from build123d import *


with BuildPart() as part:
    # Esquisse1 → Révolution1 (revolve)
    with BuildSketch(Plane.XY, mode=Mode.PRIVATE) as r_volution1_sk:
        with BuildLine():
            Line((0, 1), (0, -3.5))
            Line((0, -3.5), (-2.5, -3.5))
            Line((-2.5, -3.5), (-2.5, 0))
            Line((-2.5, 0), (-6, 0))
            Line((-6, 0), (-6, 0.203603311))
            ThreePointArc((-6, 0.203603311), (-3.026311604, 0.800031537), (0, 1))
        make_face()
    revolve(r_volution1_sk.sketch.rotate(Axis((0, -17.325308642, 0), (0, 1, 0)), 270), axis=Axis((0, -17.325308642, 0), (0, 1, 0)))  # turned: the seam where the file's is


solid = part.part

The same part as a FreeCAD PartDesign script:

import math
import FreeCAD as App
import Part
import Sketcher

V = App.Vector

doc = App.newDocument("Part")
body = doc.addObject("PartDesign::Body", "Body")

# Sketch on XY plane
sketch1 = body.newObject("Sketcher::SketchObject", "Sketch")
sketch1.AttachmentSupport = (doc.getObject("XY_Plane"), [""])
sketch1.MapMode = "FlatFace"
sketch1.addGeometry([
    Part.LineSegment(V(0, -3.5, 0), V(0, 1, 0)),  # 0
    Part.ArcOfCircle(Part.Circle(V(0, -22, 0), V(0, 0, 1), 23), math.radians(90), math.radians(105.12)),  # 1
    Part.LineSegment(V(-6, 0.2, 0), V(-6, 0, 0)),  # 2
    Part.LineSegment(V(-6, 0, 0), V(-2.5, 0, 0)),  # 3
    Part.LineSegment(V(-2.5, 0, 0), V(-2.5, -3.5, 0)),  # 4
    Part.LineSegment(V(-2.5, -3.5, 0), V(0, -3.5, 0)),  # 5
], False)
sketch1.addConstraint([
    Sketcher.Constraint("Coincident", 0, 2, 1, 1),
    Sketcher.Constraint("Coincident", 1, 2, 2, 1),
    Sketcher.Constraint("Coincident", 2, 2, 3, 1),
    Sketcher.Constraint("Coincident", 3, 2, 4, 1),
    Sketcher.Constraint("Coincident", 4, 2, 5, 1),
    Sketcher.Constraint("Coincident", 5, 2, 0, 1),
    Sketcher.Constraint("Vertical", 0),
    Sketcher.Constraint("Vertical", 2),
    Sketcher.Constraint("Horizontal", 3),
    Sketcher.Constraint("Vertical", 4),
    Sketcher.Constraint("Horizontal", 5),
    Sketcher.Constraint("PointOnObject", 1, 3, -2),
    Sketcher.Constraint("PointOnObject", 0, 2, -2),
    Sketcher.Constraint("PointOnObject", 2, 2, -1),
    Sketcher.Constraint("Equal", 3, 4),
    Sketcher.Constraint("Radius", 1, 23.0),
    Sketcher.Constraint("DistanceX", 3, 1, 3, 2, 3.5),
    Sketcher.Constraint("DistanceX", 5, 1, 5, 2, 2.5),
    Sketcher.Constraint("DistanceY", 0, 1, 0, 2, 4.5),
])
revolution = body.newObject("PartDesign::Revolution", "Revolution")
revolution.Profile = sketch1
revolution.ReferenceAxis = (sketch1, ["V_Axis"])
revolution.Angle = 360

doc.recompute()
